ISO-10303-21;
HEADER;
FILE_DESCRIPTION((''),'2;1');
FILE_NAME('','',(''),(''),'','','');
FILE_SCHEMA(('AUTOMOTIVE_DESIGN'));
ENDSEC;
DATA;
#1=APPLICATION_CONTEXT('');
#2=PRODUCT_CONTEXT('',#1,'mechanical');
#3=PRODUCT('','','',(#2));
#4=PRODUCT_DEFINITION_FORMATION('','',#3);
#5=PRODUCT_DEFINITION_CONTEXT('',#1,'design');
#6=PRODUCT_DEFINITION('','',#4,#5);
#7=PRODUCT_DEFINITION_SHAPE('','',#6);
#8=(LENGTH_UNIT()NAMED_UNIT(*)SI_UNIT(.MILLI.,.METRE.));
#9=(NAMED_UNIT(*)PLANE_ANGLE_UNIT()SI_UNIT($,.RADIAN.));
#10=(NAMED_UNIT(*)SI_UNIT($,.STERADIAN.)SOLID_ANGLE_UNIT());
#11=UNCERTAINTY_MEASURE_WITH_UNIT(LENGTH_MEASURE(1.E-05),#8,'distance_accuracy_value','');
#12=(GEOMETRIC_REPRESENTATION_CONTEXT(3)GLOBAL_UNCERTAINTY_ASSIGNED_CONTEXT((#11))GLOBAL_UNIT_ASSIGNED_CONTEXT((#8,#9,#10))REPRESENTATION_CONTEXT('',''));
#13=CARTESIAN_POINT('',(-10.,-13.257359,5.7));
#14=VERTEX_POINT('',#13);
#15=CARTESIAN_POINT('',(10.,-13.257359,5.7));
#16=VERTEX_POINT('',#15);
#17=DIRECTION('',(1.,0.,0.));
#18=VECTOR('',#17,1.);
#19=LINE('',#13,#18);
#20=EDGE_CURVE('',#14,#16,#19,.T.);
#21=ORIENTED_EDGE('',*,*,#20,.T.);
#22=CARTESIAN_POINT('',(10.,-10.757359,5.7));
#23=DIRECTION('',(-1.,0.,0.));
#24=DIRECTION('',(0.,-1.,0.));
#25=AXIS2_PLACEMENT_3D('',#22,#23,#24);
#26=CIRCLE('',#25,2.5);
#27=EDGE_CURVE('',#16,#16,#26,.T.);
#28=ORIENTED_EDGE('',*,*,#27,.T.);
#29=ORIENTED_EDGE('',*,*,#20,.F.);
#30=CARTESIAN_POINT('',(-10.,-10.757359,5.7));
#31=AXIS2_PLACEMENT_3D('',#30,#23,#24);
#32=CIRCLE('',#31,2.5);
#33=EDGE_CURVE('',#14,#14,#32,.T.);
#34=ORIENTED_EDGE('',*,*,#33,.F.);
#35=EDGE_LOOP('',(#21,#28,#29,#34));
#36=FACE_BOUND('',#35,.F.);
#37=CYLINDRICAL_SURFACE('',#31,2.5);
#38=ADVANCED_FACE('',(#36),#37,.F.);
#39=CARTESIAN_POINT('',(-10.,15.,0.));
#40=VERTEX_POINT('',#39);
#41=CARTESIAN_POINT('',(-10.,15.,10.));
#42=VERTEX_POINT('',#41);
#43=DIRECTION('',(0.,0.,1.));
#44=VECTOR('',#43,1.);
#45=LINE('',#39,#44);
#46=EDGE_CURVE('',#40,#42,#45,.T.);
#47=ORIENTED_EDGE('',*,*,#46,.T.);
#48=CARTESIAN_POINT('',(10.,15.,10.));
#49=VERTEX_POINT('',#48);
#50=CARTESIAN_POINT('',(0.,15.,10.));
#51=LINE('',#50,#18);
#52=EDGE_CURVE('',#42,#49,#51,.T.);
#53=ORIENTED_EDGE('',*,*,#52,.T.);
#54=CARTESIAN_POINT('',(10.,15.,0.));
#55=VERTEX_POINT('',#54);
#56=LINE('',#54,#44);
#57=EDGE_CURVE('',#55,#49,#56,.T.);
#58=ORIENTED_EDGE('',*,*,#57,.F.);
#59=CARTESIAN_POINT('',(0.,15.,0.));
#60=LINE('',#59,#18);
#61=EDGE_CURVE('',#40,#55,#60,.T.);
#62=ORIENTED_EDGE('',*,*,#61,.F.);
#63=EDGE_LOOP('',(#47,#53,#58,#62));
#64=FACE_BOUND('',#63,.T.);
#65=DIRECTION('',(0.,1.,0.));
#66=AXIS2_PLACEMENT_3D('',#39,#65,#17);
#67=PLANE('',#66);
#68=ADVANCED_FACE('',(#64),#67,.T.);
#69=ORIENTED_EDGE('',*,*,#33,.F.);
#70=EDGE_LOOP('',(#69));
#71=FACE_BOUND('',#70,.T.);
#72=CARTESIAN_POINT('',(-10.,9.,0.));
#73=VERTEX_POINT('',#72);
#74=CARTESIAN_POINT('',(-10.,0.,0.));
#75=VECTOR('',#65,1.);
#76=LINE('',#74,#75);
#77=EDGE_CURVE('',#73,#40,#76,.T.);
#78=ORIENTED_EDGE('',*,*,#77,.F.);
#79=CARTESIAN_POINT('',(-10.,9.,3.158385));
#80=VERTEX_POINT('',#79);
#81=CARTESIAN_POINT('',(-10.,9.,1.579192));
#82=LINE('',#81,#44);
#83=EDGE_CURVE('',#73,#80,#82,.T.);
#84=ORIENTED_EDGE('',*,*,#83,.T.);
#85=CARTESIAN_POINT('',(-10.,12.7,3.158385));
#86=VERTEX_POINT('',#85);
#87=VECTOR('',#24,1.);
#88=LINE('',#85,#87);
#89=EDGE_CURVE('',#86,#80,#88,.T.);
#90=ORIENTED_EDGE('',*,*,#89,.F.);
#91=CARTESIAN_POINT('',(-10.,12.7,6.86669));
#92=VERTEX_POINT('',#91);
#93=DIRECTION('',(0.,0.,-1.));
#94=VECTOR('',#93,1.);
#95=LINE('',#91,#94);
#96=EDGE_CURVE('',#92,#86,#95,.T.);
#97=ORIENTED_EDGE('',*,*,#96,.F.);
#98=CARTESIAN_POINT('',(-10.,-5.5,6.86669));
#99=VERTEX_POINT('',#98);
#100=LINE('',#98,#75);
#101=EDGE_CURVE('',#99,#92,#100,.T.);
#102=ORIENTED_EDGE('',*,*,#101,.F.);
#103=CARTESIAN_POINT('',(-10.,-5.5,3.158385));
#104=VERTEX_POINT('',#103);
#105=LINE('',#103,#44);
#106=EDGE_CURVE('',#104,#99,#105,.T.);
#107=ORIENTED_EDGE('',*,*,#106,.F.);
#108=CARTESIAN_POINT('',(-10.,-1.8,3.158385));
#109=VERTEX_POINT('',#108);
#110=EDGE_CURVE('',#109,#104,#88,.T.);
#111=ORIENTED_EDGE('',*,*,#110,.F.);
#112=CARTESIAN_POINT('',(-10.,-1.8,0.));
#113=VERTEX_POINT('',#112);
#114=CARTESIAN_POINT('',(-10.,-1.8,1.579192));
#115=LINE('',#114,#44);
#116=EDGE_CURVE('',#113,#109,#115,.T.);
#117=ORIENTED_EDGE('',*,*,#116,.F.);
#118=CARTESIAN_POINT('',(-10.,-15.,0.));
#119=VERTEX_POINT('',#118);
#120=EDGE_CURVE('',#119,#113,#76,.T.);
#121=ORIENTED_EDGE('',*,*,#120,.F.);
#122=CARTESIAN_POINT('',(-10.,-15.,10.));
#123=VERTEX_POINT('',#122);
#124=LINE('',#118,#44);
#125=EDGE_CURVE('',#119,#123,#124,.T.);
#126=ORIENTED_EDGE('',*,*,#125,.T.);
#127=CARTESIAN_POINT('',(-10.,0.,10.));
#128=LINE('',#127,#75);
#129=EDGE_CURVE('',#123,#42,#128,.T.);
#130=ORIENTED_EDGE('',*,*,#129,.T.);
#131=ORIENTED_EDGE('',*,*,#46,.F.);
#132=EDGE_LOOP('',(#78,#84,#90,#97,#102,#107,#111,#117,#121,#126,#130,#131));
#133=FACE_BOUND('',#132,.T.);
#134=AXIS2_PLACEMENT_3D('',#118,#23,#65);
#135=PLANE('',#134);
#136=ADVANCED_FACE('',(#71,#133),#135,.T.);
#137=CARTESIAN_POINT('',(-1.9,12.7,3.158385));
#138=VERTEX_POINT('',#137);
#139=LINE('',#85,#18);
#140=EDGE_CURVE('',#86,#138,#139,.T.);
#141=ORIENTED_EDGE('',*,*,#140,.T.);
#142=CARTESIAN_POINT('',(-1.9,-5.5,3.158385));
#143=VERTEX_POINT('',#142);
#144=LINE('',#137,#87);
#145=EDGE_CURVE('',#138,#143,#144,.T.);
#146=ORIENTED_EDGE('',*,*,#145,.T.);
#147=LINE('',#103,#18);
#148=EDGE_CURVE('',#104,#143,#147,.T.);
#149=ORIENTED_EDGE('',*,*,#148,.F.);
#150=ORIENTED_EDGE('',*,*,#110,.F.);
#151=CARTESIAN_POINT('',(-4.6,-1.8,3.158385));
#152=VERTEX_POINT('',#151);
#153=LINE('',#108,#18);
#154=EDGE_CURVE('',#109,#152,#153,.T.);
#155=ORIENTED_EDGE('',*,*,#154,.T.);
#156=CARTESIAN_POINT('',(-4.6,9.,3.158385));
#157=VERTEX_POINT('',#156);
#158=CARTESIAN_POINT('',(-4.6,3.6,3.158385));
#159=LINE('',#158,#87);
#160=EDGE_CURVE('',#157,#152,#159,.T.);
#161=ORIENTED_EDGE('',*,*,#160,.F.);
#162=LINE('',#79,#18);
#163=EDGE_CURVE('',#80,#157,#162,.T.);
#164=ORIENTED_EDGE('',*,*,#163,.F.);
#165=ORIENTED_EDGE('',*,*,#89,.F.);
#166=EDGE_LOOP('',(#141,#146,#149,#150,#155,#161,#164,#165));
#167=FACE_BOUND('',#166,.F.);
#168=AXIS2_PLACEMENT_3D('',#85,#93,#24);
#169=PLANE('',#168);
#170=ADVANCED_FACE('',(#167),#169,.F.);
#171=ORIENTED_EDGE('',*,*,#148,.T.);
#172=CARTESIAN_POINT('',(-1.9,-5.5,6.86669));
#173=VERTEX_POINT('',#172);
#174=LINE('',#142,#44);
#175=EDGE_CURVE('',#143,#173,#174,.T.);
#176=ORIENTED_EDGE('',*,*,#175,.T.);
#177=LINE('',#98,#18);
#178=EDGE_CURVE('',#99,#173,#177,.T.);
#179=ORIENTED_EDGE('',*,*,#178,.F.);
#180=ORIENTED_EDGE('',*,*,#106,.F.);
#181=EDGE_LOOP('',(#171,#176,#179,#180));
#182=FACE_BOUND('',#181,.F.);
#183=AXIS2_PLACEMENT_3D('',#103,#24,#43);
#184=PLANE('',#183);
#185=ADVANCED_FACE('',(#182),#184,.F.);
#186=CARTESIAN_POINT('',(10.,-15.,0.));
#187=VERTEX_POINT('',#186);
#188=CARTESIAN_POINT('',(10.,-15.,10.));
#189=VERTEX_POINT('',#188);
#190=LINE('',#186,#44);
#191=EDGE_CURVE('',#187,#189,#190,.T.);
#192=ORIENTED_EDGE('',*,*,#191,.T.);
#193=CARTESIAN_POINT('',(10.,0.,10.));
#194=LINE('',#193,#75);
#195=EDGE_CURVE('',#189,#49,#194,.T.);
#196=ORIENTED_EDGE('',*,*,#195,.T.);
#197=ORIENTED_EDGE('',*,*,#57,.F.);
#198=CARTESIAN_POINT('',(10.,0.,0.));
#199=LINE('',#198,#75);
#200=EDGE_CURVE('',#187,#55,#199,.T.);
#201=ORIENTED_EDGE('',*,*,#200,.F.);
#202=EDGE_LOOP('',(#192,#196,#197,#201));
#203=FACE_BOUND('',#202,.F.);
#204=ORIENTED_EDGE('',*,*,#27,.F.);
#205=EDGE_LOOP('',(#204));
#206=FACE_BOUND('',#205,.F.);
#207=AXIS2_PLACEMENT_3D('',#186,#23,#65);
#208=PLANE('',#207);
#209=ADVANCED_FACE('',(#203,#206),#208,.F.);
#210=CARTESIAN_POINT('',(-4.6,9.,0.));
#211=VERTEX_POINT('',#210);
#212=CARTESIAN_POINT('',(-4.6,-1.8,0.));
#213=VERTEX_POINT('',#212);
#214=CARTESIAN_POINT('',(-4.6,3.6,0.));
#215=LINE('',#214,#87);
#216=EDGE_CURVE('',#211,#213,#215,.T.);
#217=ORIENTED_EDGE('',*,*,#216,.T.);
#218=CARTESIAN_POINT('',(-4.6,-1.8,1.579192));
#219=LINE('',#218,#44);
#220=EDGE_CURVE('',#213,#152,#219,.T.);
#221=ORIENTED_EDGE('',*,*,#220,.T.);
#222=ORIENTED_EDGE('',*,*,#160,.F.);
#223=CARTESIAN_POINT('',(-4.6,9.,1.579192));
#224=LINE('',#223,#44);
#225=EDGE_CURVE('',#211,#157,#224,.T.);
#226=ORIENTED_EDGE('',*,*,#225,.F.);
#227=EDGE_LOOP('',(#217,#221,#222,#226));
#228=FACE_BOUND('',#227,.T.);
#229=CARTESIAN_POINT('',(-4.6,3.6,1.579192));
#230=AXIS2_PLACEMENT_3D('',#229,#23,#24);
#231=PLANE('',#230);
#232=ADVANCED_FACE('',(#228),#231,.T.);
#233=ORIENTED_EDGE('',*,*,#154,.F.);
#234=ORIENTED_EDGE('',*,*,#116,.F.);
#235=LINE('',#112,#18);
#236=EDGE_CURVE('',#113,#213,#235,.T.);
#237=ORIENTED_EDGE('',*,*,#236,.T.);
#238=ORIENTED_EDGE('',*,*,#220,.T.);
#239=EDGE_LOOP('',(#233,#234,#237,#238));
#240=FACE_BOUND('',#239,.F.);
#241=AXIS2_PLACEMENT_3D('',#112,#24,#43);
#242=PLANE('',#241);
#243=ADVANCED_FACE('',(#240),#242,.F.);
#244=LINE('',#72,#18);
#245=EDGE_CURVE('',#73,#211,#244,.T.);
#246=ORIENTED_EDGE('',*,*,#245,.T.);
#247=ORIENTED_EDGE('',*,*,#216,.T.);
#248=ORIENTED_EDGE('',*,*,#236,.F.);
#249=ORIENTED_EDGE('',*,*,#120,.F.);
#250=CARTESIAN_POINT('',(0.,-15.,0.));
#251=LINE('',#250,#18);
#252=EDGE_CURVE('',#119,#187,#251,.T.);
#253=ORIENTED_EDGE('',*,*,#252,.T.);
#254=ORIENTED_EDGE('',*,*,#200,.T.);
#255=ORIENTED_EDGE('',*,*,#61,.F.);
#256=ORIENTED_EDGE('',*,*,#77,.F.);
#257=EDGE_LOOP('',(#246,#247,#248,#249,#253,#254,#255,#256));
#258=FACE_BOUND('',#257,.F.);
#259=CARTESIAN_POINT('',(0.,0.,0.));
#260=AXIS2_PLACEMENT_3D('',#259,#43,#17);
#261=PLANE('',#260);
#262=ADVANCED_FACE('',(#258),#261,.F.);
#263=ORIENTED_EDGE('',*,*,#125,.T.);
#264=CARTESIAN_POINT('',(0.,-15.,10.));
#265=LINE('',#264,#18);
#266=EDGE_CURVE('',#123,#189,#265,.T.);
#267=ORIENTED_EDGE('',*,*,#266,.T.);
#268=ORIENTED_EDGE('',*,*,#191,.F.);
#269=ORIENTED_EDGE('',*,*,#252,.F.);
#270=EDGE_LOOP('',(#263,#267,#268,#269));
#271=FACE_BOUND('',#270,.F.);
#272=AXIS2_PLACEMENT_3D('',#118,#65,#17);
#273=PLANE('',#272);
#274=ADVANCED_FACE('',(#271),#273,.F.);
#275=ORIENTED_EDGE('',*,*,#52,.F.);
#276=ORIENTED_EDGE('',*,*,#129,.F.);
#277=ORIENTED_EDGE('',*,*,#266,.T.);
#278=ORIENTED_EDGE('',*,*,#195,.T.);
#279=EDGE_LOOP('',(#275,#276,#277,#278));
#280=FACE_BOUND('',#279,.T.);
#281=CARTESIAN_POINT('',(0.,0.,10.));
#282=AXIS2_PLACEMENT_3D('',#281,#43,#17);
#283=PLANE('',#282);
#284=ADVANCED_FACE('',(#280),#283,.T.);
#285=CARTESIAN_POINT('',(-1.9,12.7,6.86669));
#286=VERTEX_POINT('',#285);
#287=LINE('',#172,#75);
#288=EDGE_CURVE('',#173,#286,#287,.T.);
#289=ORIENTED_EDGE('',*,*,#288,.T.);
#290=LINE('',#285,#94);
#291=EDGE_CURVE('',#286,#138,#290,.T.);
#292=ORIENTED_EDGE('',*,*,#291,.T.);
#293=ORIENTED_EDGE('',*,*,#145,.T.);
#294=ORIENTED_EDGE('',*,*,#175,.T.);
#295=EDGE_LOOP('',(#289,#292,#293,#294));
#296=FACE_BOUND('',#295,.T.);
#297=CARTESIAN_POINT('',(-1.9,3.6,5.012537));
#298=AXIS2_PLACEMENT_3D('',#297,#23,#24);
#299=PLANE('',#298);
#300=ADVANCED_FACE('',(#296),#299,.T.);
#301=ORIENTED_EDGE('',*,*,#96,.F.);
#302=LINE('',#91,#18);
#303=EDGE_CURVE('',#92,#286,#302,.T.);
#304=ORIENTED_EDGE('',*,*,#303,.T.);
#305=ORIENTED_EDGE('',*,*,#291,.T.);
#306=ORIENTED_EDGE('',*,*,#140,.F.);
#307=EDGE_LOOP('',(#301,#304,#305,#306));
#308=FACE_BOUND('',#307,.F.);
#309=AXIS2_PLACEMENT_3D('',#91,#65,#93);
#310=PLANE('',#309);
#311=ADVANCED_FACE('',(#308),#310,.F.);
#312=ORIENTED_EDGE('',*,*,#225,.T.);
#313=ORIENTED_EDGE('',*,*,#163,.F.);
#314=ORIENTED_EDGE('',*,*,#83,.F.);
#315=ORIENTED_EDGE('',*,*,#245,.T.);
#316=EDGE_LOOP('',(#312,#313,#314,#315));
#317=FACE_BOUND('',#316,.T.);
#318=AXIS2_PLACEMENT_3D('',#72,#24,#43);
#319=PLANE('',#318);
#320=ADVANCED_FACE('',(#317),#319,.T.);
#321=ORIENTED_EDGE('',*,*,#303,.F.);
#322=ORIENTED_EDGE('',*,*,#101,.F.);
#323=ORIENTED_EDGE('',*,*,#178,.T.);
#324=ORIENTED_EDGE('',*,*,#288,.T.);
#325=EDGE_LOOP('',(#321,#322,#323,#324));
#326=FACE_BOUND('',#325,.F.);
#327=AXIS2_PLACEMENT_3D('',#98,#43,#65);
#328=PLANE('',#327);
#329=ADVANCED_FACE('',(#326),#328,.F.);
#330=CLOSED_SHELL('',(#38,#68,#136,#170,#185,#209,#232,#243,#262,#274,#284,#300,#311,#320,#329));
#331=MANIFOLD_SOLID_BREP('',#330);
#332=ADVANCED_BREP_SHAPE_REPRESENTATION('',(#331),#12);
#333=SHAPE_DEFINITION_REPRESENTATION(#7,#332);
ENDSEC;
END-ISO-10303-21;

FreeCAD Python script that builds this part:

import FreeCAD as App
import Part
import Sketcher


def add_polygon(sketch, points):
    """Adds a closed chain of lines whose ends are joined by coincident constraints."""
    first, n = sketch.GeometryCount, len(points)
    for a, b in zip(points, points[1:] + points[:1]):
        sketch.addGeometry(Part.LineSegment(App.Vector(*a, 0), App.Vector(*b, 0)), False)
    for i in range(n):
        sketch.addConstraint(Sketcher.Constraint("Coincident", first + i, 2, first + (i + 1) % n, 1))

doc = App.newDocument("Part")
body = doc.addObject("PartDesign::Body", "Body")

# Sketch on XY plane
sketch1 = body.newObject("Sketcher::SketchObject", "Sketch")
sketch1.AttachmentSupport = (doc.getObject("XY_Plane"), [""])
sketch1.MapMode = "FlatFace"
add_polygon(sketch1, [(-10, 15), (-10, -15), (10, -15), (10, 15)])  # lines 0-3
sketch1.addConstraint([
    Sketcher.Constraint("Vertical", 0),
    Sketcher.Constraint("Horizontal", 1),
    Sketcher.Constraint("Vertical", 2),
    Sketcher.Constraint("Horizontal", 3),
    Sketcher.Constraint("Symmetric", 0, 2, 2, 2, -1, 1),
    Sketcher.Constraint("DistanceX", 1, 1, 1, 2, 20.0),
    Sketcher.Constraint("DistanceY", 0, 2, 0, 1, 30.0),
])
pad1 = body.newObject("PartDesign::Pad", "Pad")
pad1.Profile = sketch1
pad1.Length = 10

# Sketch on YZ plane
sketch2 = body.newObject("Sketcher::SketchObject", "Sketch001")
sketch2.AttachmentSupport = (doc.getObject("YZ_Plane"), [""])
sketch2.MapMode = "FlatFace"
sketch2.AttachmentOffset = App.Placement(App.Vector(0, 0, -10), App.Rotation())
add_polygon(sketch2, [(9, 3.2), (9, 0), (-1.8, 0), (-1.8, 3.2)])  # lines 0-3
sketch2.addConstraint([
    Sketcher.Constraint("Vertical", 0),
    Sketcher.Constraint("Horizontal", 1),
    Sketcher.Constraint("Vertical", 2),
    Sketcher.Constraint("Horizontal", 3),
    Sketcher.Constraint("PointOnObject", 0, 2, -1),
    Sketcher.Constraint("DistanceX", 1, 2, 1, 1, 10.8),
    Sketcher.Constraint("DistanceX", -1, 1, 0, 2, 9.0),
    Sketcher.Constraint("DistanceY", 0, 2, 0, 1, 3.158385),
])
pocket1 = body.newObject("PartDesign::Pocket", "Pocket")
pocket1.Profile = sketch2
pocket1.Length = 5.4
pocket1.Reversed = True

# Sketch on YZ plane
sketch3 = body.newObject("Sketcher::SketchObject", "Sketch002")
sketch3.AttachmentSupport = (doc.getObject("YZ_Plane"), [""])
sketch3.MapMode = "FlatFace"
sketch3.AttachmentOffset = App.Placement(App.Vector(0, 0, -10), App.Rotation())
add_polygon(sketch3, [(12.7, 3.2), (-5.5, 3.2), (-5.5, 6.9), (12.7, 6.9)])  # lines 0-3
sketch3.addConstraint([
    Sketcher.Constraint("Horizontal", 0),
    Sketcher.Constraint("Vertical", 1),
    Sketcher.Constraint("Horizontal", 2),
    Sketcher.Constraint("Vertical", 3),
    Sketcher.Constraint("DistanceX", 0, 2, 0, 1, 18.2),
    Sketcher.Constraint("DistanceX", 0, 2, -1, 1, 5.5),
    Sketcher.Constraint("DistanceY", 1, 1, 1, 2, 3.708305),
    Sketcher.Constraint("DistanceY", -1, 1, 1, 2, 6.86669),
])
pocket2 = body.newObject("PartDesign::Pocket", "Pocket001")
pocket2.Profile = sketch3
pocket2.Length = 8.1
pocket2.Reversed = True

# Sketch on YZ plane
sketch4 = body.newObject("Sketcher::SketchObject", "Sketch003")
sketch4.AttachmentSupport = (doc.getObject("YZ_Plane"), [""])
sketch4.MapMode = "FlatFace"
sketch4.AttachmentOffset = App.Placement(App.Vector(0, 0, -10), App.Rotation())
sketch4.addGeometry(Part.Circle(App.Vector(-10.8, 5.7, 0), App.Vector(0, 0, 1), 2.5), False)
sketch4.addConstraint([
    Sketcher.Constraint("Diameter", 0, 5.0),
    Sketcher.Constraint("DistanceY", -1, 1, 0, 3, 5.7),
    Sketcher.Constraint("DistanceX", 0, 3, -1, 1, 10.757359),
])
pocket3 = body.newObject("PartDesign::Pocket", "Pocket002")
pocket3.Profile = sketch4
pocket3.Length = 20
pocket3.Reversed = True

doc.recompute()
